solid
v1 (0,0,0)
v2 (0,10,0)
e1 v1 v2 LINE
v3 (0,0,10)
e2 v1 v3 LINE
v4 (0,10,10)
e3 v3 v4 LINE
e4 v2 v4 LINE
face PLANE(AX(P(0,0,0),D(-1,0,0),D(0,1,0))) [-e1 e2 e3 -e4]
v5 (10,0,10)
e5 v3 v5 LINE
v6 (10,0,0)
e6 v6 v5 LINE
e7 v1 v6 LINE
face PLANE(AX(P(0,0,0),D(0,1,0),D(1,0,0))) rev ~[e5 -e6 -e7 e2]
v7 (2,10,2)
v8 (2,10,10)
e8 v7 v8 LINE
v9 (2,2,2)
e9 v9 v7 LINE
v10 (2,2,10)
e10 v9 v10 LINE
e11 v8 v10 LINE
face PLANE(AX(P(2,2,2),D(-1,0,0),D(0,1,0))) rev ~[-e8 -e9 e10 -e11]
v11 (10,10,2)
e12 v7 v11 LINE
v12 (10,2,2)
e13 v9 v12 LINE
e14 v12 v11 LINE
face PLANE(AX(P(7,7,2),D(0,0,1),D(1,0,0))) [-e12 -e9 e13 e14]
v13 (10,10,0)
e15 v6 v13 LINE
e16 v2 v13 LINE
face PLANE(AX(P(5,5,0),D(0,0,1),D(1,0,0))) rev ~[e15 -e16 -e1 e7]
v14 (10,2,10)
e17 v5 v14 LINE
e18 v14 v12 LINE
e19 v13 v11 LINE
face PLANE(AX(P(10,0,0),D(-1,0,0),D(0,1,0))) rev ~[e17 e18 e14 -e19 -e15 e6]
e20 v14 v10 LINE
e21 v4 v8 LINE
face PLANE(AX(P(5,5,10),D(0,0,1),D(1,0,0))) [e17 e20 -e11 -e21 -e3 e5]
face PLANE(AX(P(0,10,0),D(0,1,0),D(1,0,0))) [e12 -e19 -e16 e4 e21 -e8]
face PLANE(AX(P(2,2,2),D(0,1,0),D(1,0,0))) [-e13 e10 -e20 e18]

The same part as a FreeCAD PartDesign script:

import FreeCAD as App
import Part
import Sketcher

doc = App.newDocument("Part")
body = doc.addObject("PartDesign::Body", "Body")

# Sketch on XY plane
sketch1 = body.newObject("Sketcher::SketchObject", "Sketch")
sketch1.AttachmentSupport = (doc.getObject("XY_Plane"), [""])
sketch1.MapMode = "FlatFace"
sketch1.AttachmentOffset = App.Placement(App.Vector(0, 0, 2), App.Rotation())
sketch1.addGeometry([
    Part.LineSegment(App.Vector(2, 12, 0), App.Vector(2, 2, 0)),
    Part.LineSegment(App.Vector(2, 2, 0), App.Vector(12, 2, 0)),
    Part.LineSegment(App.Vector(12, 2, 0), App.Vector(12, 12, 0)),
    Part.LineSegment(App.Vector(12, 12, 0), App.Vector(2, 12, 0)),
], False)
sketch1.addConstraint([
    Sketcher.Constraint("Coincident", 0, 2, 1, 1),
    Sketcher.Constraint("Coincident", 1, 2, 2, 1),
    Sketcher.Constraint("Coincident", 2, 2, 3, 1),
    Sketcher.Constraint("Coincident", 3, 2, 0, 1),
    Sketcher.Constraint("Vertical", 0),
    Sketcher.Constraint("Horizontal", 1),
    Sketcher.Constraint("Vertical", 2),
    Sketcher.Constraint("Horizontal", 3),
    Sketcher.Constraint("Equal", 3, 0),
    Sketcher.Constraint("DistanceX", 1, 1, 1, 2, 10.0),
    Sketcher.Constraint("DistanceX", -1, 1, 0, 2, 2.0),
    Sketcher.Constraint("DistanceY", -1, 1, 0, 2, 2.0),
])
pad1 = body.newObject("PartDesign::Pad", "Pad")
pad1.Profile = sketch1
pad1.Length = 10
body2 = doc.addObject("PartDesign::Body", "Body001")

# Sketch on XY plane
sketch2 = body2.newObject("Sketcher::SketchObject", "Sketch001")
sketch2.AttachmentSupport = (doc.getObject("XY_Plane001"), [""])
sketch2.MapMode = "FlatFace"
sketch2.addGeometry([
    Part.LineSegment(App.Vector(0, 10, 0), App.Vector(0, 0, 0)),
    Part.LineSegment(App.Vector(0, 0, 0), App.Vector(10, 0, 0)),
    Part.LineSegment(App.Vector(10, 0, 0), App.Vector(10, 10, 0)),
    Part.LineSegment(App.Vector(10, 10, 0), App.Vector(0, 10, 0)),
], False)
sketch2.addConstraint([
    Sketcher.Constraint("Coincident", 0, 2, 1, 1),
    Sketcher.Constraint("Coincident", 1, 2, 2, 1),
    Sketcher.Constraint("Coincident", 2, 2, 3, 1),
    Sketcher.Constraint("Coincident", 3, 2, 0, 1),
    Sketcher.Constraint("Vertical", 0),
    Sketcher.Constraint("Horizontal", 1),
    Sketcher.Constraint("Vertical", 2),
    Sketcher.Constraint("Horizontal", 3),
    Sketcher.Constraint("Coincident", 0, 2, -1, 1),
    Sketcher.Constraint("Equal", 3, 0),
    Sketcher.Constraint("DistanceX", 1, 1, 1, 2, 10.0),
])
pad2 = body2.newObject("PartDesign::Pad", "Pad001")
pad2.Profile = sketch2
pad2.Length = 10
doc.recompute()

boolean = body2.newObject("PartDesign::Boolean", "Boolean")
boolean.Type = "Cut"
boolean.addObjects([body])

doc.recompute()
